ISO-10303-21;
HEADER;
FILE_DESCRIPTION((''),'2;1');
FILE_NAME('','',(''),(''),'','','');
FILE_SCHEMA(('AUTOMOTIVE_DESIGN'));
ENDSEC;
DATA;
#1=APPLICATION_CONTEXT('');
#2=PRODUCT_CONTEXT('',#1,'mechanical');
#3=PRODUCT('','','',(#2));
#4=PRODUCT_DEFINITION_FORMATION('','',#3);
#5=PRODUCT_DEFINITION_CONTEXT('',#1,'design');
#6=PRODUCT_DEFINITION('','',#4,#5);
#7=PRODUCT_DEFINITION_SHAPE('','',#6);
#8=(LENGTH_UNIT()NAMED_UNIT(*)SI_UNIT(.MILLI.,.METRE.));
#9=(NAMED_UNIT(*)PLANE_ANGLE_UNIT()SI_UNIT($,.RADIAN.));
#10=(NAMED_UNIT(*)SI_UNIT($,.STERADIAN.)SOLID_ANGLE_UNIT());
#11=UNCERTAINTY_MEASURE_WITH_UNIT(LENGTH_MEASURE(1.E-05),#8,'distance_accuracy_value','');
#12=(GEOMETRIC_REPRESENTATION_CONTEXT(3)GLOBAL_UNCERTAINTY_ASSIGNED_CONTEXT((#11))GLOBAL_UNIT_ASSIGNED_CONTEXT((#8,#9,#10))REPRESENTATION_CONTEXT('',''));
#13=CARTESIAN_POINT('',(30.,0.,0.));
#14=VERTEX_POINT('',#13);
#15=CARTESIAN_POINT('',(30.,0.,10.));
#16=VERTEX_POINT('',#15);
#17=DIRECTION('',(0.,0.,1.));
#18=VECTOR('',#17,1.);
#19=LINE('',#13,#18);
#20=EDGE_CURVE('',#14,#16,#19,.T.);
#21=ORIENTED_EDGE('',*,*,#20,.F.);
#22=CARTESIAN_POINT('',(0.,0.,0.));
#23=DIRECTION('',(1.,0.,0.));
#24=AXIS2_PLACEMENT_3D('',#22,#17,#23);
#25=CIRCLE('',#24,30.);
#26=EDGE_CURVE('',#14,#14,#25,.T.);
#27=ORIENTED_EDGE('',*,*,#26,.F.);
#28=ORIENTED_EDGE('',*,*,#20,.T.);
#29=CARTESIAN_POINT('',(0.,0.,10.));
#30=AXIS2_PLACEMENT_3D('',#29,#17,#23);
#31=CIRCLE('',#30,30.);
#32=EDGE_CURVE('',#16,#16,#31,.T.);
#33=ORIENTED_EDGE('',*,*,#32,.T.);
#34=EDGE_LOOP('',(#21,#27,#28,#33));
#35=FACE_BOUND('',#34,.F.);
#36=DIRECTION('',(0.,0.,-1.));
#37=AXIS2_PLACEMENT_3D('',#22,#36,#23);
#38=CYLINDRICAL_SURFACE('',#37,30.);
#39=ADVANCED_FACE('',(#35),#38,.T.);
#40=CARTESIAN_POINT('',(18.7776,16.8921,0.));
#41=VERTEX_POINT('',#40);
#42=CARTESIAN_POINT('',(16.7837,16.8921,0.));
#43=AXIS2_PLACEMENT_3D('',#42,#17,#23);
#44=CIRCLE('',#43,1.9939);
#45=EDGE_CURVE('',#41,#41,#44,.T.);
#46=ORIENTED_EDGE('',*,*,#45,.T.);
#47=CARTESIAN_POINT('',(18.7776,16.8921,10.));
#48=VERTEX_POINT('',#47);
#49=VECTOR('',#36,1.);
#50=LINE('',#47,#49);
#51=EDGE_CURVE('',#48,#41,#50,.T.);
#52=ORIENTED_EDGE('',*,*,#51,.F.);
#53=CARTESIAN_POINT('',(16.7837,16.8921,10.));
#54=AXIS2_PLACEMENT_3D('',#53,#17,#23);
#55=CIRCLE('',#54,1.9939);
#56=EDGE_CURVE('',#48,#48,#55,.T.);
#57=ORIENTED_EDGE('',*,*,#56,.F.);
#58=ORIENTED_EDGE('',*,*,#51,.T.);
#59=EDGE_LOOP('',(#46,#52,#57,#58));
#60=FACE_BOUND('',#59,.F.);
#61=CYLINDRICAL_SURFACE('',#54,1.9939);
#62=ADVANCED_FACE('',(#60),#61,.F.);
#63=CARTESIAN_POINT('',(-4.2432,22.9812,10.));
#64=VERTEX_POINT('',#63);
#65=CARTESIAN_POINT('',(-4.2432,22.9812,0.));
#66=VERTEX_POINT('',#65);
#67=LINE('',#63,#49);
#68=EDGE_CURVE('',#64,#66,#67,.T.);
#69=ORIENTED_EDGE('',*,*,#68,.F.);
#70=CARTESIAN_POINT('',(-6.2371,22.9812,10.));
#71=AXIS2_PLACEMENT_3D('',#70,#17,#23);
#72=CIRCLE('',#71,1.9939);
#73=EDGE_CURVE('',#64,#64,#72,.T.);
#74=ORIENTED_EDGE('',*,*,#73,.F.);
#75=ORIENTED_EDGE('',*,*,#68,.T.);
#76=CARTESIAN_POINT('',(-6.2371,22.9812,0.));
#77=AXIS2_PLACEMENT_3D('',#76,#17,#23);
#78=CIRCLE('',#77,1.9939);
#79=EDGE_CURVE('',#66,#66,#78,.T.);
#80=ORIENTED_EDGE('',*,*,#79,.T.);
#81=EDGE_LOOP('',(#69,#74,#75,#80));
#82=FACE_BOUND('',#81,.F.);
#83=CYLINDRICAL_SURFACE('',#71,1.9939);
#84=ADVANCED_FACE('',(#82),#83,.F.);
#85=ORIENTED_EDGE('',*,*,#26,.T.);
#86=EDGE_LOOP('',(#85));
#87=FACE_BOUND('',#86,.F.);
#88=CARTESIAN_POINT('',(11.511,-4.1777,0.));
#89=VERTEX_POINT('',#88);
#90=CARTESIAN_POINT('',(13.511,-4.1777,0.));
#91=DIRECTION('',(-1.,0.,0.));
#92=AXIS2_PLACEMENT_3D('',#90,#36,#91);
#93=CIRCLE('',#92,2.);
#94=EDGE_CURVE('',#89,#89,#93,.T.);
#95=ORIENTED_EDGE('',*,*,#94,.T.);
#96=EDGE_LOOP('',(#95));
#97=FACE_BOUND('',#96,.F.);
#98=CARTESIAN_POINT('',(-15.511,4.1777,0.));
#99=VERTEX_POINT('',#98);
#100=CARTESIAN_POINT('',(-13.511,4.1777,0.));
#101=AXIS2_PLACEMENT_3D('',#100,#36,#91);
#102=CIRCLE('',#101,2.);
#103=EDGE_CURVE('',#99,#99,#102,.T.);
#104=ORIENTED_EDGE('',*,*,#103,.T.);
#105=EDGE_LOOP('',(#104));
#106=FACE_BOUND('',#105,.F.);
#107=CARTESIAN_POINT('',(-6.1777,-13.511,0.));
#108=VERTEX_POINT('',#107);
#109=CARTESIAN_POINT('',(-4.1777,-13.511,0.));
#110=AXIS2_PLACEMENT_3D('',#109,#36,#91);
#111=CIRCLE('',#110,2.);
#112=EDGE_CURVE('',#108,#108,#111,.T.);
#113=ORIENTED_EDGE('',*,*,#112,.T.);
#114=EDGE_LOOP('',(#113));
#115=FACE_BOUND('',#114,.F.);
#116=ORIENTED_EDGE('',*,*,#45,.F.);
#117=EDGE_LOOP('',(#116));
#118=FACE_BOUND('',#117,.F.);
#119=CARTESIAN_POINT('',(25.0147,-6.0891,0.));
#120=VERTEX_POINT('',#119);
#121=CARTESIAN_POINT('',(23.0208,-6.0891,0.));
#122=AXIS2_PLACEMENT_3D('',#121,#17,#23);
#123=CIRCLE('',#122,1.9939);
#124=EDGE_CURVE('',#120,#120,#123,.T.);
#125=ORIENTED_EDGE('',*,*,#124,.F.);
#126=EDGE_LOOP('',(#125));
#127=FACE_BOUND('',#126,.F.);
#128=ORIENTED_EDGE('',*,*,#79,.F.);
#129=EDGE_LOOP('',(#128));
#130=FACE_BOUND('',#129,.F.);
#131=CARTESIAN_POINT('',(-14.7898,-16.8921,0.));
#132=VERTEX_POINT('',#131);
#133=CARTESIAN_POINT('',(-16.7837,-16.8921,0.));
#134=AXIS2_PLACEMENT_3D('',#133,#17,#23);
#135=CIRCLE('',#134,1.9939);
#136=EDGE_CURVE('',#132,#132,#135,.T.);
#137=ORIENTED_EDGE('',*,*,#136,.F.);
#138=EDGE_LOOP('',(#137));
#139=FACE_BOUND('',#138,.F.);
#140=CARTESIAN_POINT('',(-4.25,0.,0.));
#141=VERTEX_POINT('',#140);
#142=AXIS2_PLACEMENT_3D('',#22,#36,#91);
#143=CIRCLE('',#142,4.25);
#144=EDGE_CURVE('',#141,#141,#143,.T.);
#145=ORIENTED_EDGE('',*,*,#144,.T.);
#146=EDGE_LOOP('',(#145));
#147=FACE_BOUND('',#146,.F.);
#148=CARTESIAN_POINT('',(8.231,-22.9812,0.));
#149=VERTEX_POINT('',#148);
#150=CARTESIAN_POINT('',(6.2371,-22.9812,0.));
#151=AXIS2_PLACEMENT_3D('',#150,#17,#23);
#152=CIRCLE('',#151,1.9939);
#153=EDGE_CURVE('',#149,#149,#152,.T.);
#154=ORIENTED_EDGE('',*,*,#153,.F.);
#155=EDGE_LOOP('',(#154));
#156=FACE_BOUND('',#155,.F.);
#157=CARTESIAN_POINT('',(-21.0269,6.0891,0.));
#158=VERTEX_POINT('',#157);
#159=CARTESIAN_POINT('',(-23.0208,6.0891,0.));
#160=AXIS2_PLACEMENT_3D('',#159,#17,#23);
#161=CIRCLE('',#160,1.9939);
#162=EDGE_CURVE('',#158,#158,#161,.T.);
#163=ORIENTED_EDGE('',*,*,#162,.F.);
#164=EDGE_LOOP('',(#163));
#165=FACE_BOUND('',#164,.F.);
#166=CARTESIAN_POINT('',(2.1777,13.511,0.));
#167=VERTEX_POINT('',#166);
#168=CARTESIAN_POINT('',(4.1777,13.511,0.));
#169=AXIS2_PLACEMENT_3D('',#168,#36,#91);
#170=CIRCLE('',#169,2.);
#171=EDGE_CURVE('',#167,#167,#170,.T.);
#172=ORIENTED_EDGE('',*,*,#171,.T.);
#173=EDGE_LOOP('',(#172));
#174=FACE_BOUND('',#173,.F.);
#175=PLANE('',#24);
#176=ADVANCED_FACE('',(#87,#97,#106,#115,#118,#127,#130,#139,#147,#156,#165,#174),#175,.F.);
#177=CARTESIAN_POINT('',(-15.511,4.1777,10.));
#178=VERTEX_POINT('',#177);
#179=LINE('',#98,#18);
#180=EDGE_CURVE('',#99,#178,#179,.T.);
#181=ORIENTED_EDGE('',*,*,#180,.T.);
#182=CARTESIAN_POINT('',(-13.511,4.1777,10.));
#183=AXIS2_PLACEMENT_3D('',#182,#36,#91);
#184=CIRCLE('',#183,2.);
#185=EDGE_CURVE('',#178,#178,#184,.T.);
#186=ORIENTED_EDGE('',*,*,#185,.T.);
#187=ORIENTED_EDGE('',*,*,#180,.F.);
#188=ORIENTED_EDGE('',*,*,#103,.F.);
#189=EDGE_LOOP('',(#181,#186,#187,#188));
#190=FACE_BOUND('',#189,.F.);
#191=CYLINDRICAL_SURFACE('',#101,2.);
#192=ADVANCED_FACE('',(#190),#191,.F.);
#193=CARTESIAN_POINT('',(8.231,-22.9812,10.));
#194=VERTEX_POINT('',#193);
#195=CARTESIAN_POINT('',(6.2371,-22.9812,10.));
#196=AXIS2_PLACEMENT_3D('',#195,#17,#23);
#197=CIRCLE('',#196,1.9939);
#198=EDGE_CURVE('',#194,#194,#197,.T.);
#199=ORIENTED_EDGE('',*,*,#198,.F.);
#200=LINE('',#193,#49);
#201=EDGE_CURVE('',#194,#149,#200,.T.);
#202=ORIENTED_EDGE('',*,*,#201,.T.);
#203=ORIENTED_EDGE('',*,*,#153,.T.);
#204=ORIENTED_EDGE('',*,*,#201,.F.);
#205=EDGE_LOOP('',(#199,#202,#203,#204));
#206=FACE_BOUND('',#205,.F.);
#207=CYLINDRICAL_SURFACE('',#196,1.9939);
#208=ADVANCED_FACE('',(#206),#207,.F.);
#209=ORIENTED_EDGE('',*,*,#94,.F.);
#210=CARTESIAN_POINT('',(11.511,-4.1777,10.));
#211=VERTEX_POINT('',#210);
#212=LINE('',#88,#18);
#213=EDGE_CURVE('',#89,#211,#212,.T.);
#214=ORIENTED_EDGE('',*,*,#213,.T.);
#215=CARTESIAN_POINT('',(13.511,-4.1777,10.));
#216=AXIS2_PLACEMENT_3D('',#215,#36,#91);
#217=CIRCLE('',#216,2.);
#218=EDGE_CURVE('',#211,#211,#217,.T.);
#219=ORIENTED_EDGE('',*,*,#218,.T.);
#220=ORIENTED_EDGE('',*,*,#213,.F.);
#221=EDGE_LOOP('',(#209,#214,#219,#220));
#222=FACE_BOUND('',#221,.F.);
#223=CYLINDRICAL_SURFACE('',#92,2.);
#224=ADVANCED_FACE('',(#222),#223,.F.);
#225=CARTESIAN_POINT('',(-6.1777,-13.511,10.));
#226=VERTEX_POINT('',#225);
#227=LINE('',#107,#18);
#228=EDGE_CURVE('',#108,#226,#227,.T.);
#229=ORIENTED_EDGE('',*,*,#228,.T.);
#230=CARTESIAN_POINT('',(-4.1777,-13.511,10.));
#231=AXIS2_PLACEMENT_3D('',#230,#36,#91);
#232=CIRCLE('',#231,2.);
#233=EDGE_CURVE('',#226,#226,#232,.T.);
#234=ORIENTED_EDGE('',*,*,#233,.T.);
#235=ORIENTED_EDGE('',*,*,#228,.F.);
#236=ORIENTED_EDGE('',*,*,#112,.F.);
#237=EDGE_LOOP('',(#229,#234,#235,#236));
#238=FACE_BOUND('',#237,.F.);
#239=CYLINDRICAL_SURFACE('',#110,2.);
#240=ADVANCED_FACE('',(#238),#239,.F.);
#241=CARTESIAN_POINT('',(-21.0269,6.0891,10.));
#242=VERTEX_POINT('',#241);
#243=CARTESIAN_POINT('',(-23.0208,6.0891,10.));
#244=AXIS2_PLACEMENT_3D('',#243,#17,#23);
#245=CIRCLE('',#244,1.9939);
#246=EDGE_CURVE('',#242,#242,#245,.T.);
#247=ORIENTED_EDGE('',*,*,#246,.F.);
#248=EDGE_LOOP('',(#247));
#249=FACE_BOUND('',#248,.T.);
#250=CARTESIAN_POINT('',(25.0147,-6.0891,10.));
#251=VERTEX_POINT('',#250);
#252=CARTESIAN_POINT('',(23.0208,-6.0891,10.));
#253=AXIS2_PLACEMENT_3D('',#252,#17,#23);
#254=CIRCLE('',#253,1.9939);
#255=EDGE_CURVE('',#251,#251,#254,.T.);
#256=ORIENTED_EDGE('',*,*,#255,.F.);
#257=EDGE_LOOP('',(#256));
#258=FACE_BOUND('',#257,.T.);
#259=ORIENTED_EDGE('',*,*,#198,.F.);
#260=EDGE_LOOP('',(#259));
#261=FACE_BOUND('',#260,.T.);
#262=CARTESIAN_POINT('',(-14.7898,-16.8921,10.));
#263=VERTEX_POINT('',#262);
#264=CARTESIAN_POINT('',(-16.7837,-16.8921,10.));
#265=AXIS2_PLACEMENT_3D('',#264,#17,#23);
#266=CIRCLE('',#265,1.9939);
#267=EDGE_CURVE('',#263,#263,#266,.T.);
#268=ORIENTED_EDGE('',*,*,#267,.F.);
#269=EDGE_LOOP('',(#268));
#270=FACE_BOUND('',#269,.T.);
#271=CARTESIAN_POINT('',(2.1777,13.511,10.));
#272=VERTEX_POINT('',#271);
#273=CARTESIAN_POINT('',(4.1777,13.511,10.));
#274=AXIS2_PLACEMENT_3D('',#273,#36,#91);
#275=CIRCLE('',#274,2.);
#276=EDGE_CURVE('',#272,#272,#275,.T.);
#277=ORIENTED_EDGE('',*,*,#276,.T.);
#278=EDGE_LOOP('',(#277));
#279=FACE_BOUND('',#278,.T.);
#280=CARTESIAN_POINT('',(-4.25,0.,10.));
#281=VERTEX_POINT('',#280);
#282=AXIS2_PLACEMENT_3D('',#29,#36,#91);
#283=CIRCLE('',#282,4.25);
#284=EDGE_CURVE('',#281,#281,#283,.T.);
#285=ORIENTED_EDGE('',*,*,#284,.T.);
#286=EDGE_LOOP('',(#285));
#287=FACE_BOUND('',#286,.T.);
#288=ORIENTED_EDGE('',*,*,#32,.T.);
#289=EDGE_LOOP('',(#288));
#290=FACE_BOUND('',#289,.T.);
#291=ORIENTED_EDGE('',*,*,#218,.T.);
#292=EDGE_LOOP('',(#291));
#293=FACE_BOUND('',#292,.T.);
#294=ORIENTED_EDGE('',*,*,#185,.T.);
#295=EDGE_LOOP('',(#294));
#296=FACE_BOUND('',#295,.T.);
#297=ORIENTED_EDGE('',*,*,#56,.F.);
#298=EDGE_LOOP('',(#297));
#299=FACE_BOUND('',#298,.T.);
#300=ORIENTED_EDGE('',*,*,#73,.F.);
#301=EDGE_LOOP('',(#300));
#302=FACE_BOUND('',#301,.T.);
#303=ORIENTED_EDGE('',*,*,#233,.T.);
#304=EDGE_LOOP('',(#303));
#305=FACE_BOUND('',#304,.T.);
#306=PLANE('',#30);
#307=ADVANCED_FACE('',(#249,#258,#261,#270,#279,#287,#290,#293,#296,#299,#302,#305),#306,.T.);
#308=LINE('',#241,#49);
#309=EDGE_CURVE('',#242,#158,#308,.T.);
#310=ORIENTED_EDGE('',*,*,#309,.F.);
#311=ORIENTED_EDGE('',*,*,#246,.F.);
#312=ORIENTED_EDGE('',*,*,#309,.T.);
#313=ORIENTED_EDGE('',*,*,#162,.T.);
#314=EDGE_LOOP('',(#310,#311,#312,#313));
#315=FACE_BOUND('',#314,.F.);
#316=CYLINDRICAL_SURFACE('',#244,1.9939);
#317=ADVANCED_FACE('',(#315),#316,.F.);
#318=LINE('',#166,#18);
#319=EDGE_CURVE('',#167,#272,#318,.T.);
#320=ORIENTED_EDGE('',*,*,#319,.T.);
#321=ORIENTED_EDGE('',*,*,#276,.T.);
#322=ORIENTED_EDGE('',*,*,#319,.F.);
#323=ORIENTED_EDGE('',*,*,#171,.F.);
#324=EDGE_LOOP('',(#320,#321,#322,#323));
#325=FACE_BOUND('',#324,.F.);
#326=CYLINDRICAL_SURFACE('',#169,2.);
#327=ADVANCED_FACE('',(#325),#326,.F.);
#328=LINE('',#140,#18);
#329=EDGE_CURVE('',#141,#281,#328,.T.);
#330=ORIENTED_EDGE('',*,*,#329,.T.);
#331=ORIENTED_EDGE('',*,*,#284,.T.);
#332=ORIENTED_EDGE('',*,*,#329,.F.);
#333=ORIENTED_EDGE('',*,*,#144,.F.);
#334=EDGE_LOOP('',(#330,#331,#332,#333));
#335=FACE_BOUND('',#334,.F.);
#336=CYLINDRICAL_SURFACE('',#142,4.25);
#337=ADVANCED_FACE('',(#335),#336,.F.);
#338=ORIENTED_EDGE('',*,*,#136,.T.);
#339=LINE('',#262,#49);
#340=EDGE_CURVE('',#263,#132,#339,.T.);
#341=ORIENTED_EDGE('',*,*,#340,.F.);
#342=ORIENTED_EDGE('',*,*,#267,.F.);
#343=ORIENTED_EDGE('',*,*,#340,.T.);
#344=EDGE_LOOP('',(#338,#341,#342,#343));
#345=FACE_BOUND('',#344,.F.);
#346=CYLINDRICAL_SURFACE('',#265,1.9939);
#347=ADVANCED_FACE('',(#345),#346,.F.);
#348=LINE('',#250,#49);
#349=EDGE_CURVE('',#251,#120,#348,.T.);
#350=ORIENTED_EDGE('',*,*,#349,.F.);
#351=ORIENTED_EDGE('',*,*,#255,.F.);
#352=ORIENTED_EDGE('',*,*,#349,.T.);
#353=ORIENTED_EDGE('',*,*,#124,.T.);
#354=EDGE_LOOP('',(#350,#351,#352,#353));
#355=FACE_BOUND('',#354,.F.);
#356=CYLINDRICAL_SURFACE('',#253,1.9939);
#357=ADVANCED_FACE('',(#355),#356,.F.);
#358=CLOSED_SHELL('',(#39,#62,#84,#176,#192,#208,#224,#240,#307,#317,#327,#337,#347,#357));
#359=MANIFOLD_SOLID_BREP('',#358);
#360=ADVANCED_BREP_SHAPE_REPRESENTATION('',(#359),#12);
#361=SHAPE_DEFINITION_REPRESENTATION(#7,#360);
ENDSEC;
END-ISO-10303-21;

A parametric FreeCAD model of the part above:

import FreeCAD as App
import Part
import Sketcher

doc = App.newDocument("Part")
params = doc.addObject("Spreadsheet::Sheet", "Params")
for row, (alias, value) in enumerate([
    ("sketch1_diameter", "60 mm"),
    ("pad1_length", "10 mm"),
    ("sketch3_diameter", "4 mm"),
    ("sketch4_diameter", "8.5 mm"),
], start=1):
    params.set(f"A{row}", alias)
    params.set(f"B{row}", "=" + value)
    params.setAlias(f"B{row}", alias)

body = doc.addObject("PartDesign::Body", "Body")

# Sketch on XY plane
sketch1 = body.newObject("Sketcher::SketchObject", "Sketch")
sketch1.AttachmentSupport = (doc.getObject("XY_Plane"), [""])
sketch1.MapMode = "FlatFace"
sketch1.addGeometry(Part.Circle(App.Vector(0, 0, 0), App.Vector(0, 0, 1), 30), False)
sketch1.addConstraint([
    Sketcher.Constraint("Coincident", 0, 3, -1, 1),
    Sketcher.Constraint("Diameter", 0, 60.0),
])
sketch1.setExpression("Constraints[1]", "Params.sketch1_diameter")
pad1 = body.newObject("PartDesign::Pad", "Pad")
pad1.Profile = sketch1
pad1.setExpression("Length", "Params.pad1_length")

# Sketch on XY plane
sketch2 = body.newObject("Sketcher::SketchObject", "Sketch001")
sketch2.AttachmentSupport = (doc.getObject("XY_Plane"), [""])
sketch2.MapMode = "FlatFace"
sketch2.AttachmentOffset = App.Placement(App.Vector(0, 0, 10), App.Rotation())
sketch2.addGeometry([
    Part.Circle(App.Vector(6.2, -23, 0), App.Vector(0, 0, 1), 2),  # 0
    Part.Circle(App.Vector(23, -6.1, 0), App.Vector(0, 0, 1), 2),  # 1
    Part.Circle(App.Vector(-23, 6.1, 0), App.Vector(0, 0, 1), 2),  # 2
    Part.Circle(App.Vector(-16.8, -16.9, 0), App.Vector(0, 0, 1), 2),  # 3
    Part.Circle(App.Vector(-6.2, 23, 0), App.Vector(0, 0, 1), 2),  # 4
    Part.Circle(App.Vector(16.8, 16.9, 0), App.Vector(0, 0, 1), 2),  # 5
], False)
sketch2.addConstraint([
    Sketcher.Constraint("Equal", 0, 1),
    Sketcher.Constraint("Equal", 1, 2),
    Sketcher.Constraint("Equal", 2, 3),
    Sketcher.Constraint("Equal", 3, 4),
    Sketcher.Constraint("Equal", 4, 5),
    Sketcher.Constraint("Symmetric", 1, 3, 2, 3, -1, 1),
    Sketcher.Constraint("Symmetric", 0, 3, 4, 3, -1, 1),
    Sketcher.Constraint("Symmetric", 3, 3, 5, 3, -1, 1),
    Sketcher.Constraint("Diameter", 0, 3.9878),
    Sketcher.Constraint("DistanceX", -1, 1, 0, 3, 6.237),
    Sketcher.Constraint("DistanceY", 1, 3, -1, 1, 6.089),
    Sketcher.Constraint("DistanceY", 3, 3, -1, 1, 16.892),
    Sketcher.Constraint("DistanceY", 0, 3, 1, 3, 16.892),
    Sketcher.Constraint("DistanceX", 2, 3, 0, 3, 29.258),
    Sketcher.Constraint("DistanceX", 2, 3, 3, 3, 6.237),
])
pocket1 = body.newObject("PartDesign::Pocket", "Pocket")
pocket1.Profile = sketch2
pocket1.Type = "ThroughAll"

# Sketch on XY plane
sketch3 = body.newObject("Sketcher::SketchObject", "Sketch002")
sketch3.AttachmentSupport = (doc.getObject("XY_Plane"), [""])
sketch3.MapMode = "FlatFace"
sketch3.addGeometry([
    Part.Circle(App.Vector(13.5, -4.2, 0), App.Vector(0, 0, 1), 2),
    Part.Circle(App.Vector(4.2, 13.5, 0), App.Vector(0, 0, 1), 2),
    Part.Circle(App.Vector(-4.2, -13.5, 0), App.Vector(0, 0, 1), 2),
    Part.Circle(App.Vector(-13.5, 4.2, 0), App.Vector(0, 0, 1), 2),
], False)
sketch3.addConstraint([
    Sketcher.Constraint("Equal", 0, 1),
    Sketcher.Constraint("Equal", 1, 2),
    Sketcher.Constraint("Equal", 2, 3),
    Sketcher.Constraint("Symmetric", 1, 3, 2, 3, -1, 1),
    Sketcher.Constraint("Symmetric", 0, 3, 3, 3, -1, 1),
    Sketcher.Constraint("Diameter", 0, 4.0),
    Sketcher.Constraint("DistanceX", -1, 1, 0, 3, 13.511),
    Sketcher.Constraint("DistanceY", -1, 1, 1, 3, 13.511),
    Sketcher.Constraint("DistanceY", 0, 3, -1, 1, 4.1777),
    Sketcher.Constraint("DistanceX", -1, 1, 1, 3, 4.1777),
])
sketch3.setExpression("Constraints[5]", "Params.sketch3_diameter")
pocket2 = body.newObject("PartDesign::Pocket", "Pocket001")
pocket2.Profile = sketch3
pocket2.Type = "ThroughAll"
pocket2.Reversed = True

# Sketch on XY plane
sketch4 = body.newObject("Sketcher::SketchObject", "Sketch003")
sketch4.AttachmentSupport = (doc.getObject("XY_Plane"), [""])
sketch4.MapMode = "FlatFace"
sketch4.addGeometry(Part.Circle(App.Vector(0, 0, 0), App.Vector(0, 0, 1), 4.2), False)
sketch4.addConstraint([
    Sketcher.Constraint("Coincident", 0, 3, -1, 1),
    Sketcher.Constraint("Diameter", 0, 8.5),
])
sketch4.setExpression("Constraints[1]", "Params.sketch4_diameter")
pocket3 = body.newObject("PartDesign::Pocket", "Pocket002")
pocket3.Profile = sketch4
pocket3.Type = "ThroughAll"
pocket3.Reversed = True

doc.recompute()
